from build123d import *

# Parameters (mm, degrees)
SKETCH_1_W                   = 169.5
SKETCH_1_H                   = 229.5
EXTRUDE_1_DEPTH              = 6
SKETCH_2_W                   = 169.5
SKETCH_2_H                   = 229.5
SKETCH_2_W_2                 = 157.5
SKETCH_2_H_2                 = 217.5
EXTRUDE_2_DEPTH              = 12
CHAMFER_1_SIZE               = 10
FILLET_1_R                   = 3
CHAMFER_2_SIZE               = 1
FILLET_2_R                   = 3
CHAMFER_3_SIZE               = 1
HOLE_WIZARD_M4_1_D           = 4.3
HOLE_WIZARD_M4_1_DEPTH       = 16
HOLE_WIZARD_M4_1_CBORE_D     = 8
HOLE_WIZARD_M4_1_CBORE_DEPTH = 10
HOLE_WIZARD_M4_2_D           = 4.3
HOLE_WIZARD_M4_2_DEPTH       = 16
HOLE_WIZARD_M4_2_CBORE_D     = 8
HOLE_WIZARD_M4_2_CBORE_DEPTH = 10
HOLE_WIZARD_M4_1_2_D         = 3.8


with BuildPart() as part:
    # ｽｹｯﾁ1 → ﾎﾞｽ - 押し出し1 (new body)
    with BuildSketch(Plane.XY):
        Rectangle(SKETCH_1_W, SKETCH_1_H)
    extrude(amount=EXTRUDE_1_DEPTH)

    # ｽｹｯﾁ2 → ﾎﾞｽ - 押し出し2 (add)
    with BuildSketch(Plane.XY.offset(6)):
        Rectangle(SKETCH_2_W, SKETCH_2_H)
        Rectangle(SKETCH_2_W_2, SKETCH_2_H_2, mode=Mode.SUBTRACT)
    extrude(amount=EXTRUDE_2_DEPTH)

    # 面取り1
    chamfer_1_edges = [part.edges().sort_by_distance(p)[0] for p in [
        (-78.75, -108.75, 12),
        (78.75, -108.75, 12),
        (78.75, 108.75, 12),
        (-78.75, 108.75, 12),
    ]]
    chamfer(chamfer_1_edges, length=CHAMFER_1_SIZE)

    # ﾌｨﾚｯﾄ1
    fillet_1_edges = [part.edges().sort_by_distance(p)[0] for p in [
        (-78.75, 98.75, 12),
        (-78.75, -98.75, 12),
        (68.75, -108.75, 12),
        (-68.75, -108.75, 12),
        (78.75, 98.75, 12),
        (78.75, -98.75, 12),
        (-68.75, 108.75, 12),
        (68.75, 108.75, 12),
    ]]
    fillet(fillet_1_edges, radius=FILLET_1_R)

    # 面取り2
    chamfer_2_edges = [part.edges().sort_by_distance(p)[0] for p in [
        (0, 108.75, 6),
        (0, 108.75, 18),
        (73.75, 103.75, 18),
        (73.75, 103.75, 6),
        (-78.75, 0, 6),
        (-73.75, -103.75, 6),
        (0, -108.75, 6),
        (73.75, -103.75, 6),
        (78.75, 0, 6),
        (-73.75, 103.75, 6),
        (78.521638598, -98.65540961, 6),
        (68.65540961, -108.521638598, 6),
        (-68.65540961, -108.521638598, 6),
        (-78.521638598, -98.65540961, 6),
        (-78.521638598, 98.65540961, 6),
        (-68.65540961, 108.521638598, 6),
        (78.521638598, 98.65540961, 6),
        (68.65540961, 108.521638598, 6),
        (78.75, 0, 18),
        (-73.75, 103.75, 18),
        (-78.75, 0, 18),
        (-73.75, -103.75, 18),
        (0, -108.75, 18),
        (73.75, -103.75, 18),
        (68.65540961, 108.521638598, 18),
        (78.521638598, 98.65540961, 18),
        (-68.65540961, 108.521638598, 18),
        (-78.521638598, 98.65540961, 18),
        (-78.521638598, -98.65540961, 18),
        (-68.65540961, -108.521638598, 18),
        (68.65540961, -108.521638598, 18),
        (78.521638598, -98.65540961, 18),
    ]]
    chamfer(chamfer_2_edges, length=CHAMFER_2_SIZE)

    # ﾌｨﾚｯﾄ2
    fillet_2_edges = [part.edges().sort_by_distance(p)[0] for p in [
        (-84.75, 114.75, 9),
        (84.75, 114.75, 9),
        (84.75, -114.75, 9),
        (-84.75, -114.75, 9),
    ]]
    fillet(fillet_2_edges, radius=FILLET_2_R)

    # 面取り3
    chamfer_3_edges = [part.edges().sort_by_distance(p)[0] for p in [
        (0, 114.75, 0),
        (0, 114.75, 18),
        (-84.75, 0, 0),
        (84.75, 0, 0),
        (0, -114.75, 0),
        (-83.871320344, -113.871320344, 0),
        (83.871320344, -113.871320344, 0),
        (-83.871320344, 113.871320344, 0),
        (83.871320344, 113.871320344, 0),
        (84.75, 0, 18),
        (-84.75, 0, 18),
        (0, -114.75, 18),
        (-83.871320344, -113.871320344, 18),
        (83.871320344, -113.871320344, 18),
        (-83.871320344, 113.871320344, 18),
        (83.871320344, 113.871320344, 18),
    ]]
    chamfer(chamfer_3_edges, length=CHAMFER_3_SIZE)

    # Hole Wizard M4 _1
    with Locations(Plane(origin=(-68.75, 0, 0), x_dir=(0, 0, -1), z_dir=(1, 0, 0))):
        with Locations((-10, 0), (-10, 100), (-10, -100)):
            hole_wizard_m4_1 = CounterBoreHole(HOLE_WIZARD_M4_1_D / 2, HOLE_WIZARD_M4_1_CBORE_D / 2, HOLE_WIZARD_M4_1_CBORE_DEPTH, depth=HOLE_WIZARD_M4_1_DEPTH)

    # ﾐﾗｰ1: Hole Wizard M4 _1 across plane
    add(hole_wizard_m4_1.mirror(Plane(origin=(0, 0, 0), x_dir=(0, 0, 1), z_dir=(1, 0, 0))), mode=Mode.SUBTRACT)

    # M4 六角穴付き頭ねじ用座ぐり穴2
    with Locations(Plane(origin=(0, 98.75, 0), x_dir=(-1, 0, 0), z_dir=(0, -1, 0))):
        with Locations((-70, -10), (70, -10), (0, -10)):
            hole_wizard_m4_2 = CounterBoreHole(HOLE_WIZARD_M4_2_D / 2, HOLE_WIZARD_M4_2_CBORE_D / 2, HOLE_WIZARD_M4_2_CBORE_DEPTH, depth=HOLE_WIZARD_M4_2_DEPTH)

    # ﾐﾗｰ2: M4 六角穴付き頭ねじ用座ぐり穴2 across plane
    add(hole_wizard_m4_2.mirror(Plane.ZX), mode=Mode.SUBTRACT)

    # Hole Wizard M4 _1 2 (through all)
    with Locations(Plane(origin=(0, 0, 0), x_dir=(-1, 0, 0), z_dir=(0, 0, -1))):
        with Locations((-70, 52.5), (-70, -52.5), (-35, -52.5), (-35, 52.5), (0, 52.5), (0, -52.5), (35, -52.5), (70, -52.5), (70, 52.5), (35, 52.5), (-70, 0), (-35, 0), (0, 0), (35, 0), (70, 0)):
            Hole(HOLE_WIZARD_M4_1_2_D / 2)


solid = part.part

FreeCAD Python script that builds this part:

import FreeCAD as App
import Part
import Sketcher

V = App.Vector


def edges_at(feature, points):
    """Names of the edges that pass closest to the given points."""
    edges = feature.Shape.Edges
    near = lambda p: min(range(len(edges)), key=lambda i: edges[i].distToShape(Part.Vertex(*p))[0])
    return sorted({f"Edge{near(p) + 1}" for p in points})


def add_polygon(sketch, points):
    """Adds a closed chain of lines whose ends are joined by coincident constraints."""
    first, n = sketch.GeometryCount, len(points)
    for a, b in zip(points, points[1:] + points[:1]):
        sketch.addGeometry(Part.LineSegment(App.Vector(*a, 0), App.Vector(*b, 0)), False)
    for i in range(n):
        sketch.addConstraint(Sketcher.Constraint("Coincident", first + i, 2, first + (i + 1) % n, 1))

doc = App.newDocument("Part")
body = doc.addObject("PartDesign::Body", "Body")

# Sketch on XY plane
sketch1 = body.newObject("Sketcher::SketchObject", "Sketch")
sketch1.AttachmentSupport = (doc.getObject("XY_Plane"), [""])
sketch1.MapMode = "FlatFace"
add_polygon(sketch1, [(-84.75, 114.75), (-84.75, -114.75), (84.75, -114.75), (84.75, 114.75)])  # lines 0-3
sketch1.addConstraint(Sketcher.Constraint("Vertical", 0))
sketch1.addConstraint(Sketcher.Constraint("Horizontal", 1))
sketch1.addConstraint(Sketcher.Constraint("Vertical", 2))
sketch1.addConstraint(Sketcher.Constraint("Horizontal", 3))
sketch1.addConstraint(Sketcher.Constraint("Symmetric", 0, 2, 2, 2, -1, 1))
sketch1.addConstraint(Sketcher.Constraint("DistanceX", 1, 1, 1, 2, 169.5))
sketch1.addConstraint(Sketcher.Constraint("DistanceY", 0, 2, 0, 1, 229.5))
pad1 = body.newObject("PartDesign::Pad", "Pad")
pad1.Profile = sketch1
pad1.Length = 6

# Sketch on XY plane
sketch2 = body.newObject("Sketcher::SketchObject", "Sketch001")
sketch2.AttachmentSupport = (doc.getObject("XY_Plane"), [""])
sketch2.MapMode = "FlatFace"
sketch2.AttachmentOffset = App.Placement(V(0, 0, 6), App.Rotation())
add_polygon(sketch2, [(-84.75, 114.75), (-84.75, -114.75), (84.75, -114.75), (84.75, 114.75)])  # lines 0-3
add_polygon(sketch2, [(78.75, -108.75), (-78.75, -108.75), (-78.75, 108.75), (78.75, 108.75)])  # lines 4-7
sketch2.addConstraint(Sketcher.Constraint("Vertical", 0))
sketch2.addConstraint(Sketcher.Constraint("Horizontal", 1))
sketch2.addConstraint(Sketcher.Constraint("Vertical", 2))
sketch2.addConstraint(Sketcher.Constraint("Horizontal", 3))
sketch2.addConstraint(Sketcher.Constraint("Horizontal", 4))
sketch2.addConstraint(Sketcher.Constraint("Vertical", 5))
sketch2.addConstraint(Sketcher.Constraint("Horizontal", 6))
sketch2.addConstraint(Sketcher.Constraint("Vertical", 7))
sketch2.addConstraint(Sketcher.Constraint("Symmetric", 0, 2, 2, 2, -1, 1))
sketch2.addConstraint(Sketcher.Constraint("Symmetric", 4, 2, 6, 2, -1, 1))
sketch2.addConstraint(Sketcher.Constraint("DistanceX", 1, 1, 1, 2, 169.5))
sketch2.addConstraint(Sketcher.Constraint("DistanceX", 4, 2, 4, 1, 157.5))
sketch2.addConstraint(Sketcher.Constraint("DistanceY", 0, 2, 0, 1, 229.5))
sketch2.addConstraint(Sketcher.Constraint("DistanceY", 5, 1, 5, 2, 217.5))
pad2 = body.newObject("PartDesign::Pad", "Pad001")
pad2.Profile = sketch2
pad2.Length = 12
doc.recompute()

chamfer = body.newObject("PartDesign::Chamfer", "Chamfer")
chamfer.Base = (pad2, edges_at(pad2, [
    (-78.75, -108.75, 12),
    (78.75, -108.75, 12),
    (78.75, 108.75, 12),
    (-78.75, 108.75, 12),
]))
chamfer.Size = 10
doc.recompute()

fillet = body.newObject("PartDesign::Fillet", "Fillet")
fillet.Base = (chamfer, edges_at(chamfer, [
    (-78.75, 98.75, 12),
    (-78.75, -98.75, 12),
    (68.75, -108.75, 12),
    (-68.75, -108.75, 12),
    (78.75, 98.75, 12),
    (78.75, -98.75, 12),
    (-68.75, 108.75, 12),
    (68.75, 108.75, 12),
]))
fillet.Radius = 3
doc.recompute()

chamfer2 = body.newObject("PartDesign::Chamfer", "Chamfer001")
chamfer2.Base = (fillet, edges_at(fillet, [
    (0, 108.75, 6),
    (0, 108.75, 18),
    (73.75, 103.75, 18),
    (73.75, 103.75, 6),
    (-78.75, 0, 6),
    (-73.75, -103.75, 6),
    (0, -108.75, 6),
    (73.75, -103.75, 6),
    (78.75, 0, 6),
    (-73.75, 103.75, 6),
    (78.522, -98.655, 6),
    (68.655, -108.522, 6),
    (-68.655, -108.522, 6),
    (-78.522, -98.655, 6),
    (-78.522, 98.655, 6),
    (-68.655, 108.522, 6),
    (78.522, 98.655, 6),
    (68.655, 108.522, 6),
    (78.75, 0, 18),
    (-73.75, 103.75, 18),
    (-78.75, 0, 18),
    (-73.75, -103.75, 18),
    (0, -108.75, 18),
    (73.75, -103.75, 18),
    (68.655, 108.522, 18),
    (78.522, 98.655, 18),
    (-68.655, 108.522, 18),
    (-78.522, 98.655, 18),
    (-78.522, -98.655, 18),
    (-68.655, -108.522, 18),
    (68.655, -108.522, 18),
    (78.522, -98.655, 18),
]))
chamfer2.Size = 1
doc.recompute()

fillet2 = body.newObject("PartDesign::Fillet", "Fillet001")
fillet2.Base = (chamfer2, edges_at(chamfer2, [
    (-84.75, 114.75, 9),
    (84.75, 114.75, 9),
    (84.75, -114.75, 9),
    (-84.75, -114.75, 9),
]))
fillet2.Radius = 3
doc.recompute()

chamfer3 = body.newObject("PartDesign::Chamfer", "Chamfer002")
chamfer3.Base = (fillet2, edges_at(fillet2, [
    (0, 114.75, 0),
    (0, 114.75, 18),
    (-84.75, 0, 0),
    (84.75, 0, 0),
    (0, -114.75, 0),
    (-83.871, -113.871, 0),
    (83.871, -113.871, 0),
    (-83.871, 113.871, 0),
    (83.871, 113.871, 0),
    (84.75, 0, 18),
    (-84.75, 0, 18),
    (0, -114.75, 18),
    (-83.871, -113.871, 18),
    (83.871, -113.871, 18),
    (-83.871, 113.871, 18),
    (83.871, 113.871, 18),
]))
chamfer3.Size = 1

# Sketch on YZ plane
sketch3 = body.newObject("Sketcher::SketchObject", "Sketch002")
sketch3.AttachmentSupport = (doc.getObject("YZ_Plane"), [""])
sketch3.MapMode = "FlatFace"
sketch3.AttachmentOffset = App.Placement(V(0, 0, -68.75), App.Rotation())
sketch3.addGeometry(Part.Circle(V(0, 10, 0), V(0, 0, 1), 2.15), False)
sketch3.addGeometry(Part.Circle(V(100, 10, 0), V(0, 0, 1), 2.15), False)
sketch3.addGeometry(Part.Circle(V(-100, 10, 0), V(0, 0, 1), 2.15), False)
sketch3.addConstraint(Sketcher.Constraint("Equal", 0, 1))
sketch3.addConstraint(Sketcher.Constraint("Equal", 1, 2))
sketch3.addConstraint(Sketcher.Constraint("Symmetric", 1, 3, 2, 3, -2))
sketch3.addConstraint(Sketcher.Constraint("PointOnObject", 0, 3, -2))
sketch3.addConstraint(Sketcher.Constraint("Horizontal", 0, 3, 1, 3))
sketch3.addConstraint(Sketcher.Constraint("Diameter", 0, 4.3))
sketch3.addConstraint(Sketcher.Constraint("DistanceY", -1, 1, 0, 3, 10.0))
sketch3.addConstraint(Sketcher.Constraint("DistanceX", -1, 1, 1, 3, 100.0))
doc.recompute()
hole = body.newObject("PartDesign::Hole", "Hole")
hole.Profile = sketch3
hole.ThreadType = "None"
hole.Diameter = 4.3
hole.DepthType = "Dimension"
hole.Depth = 16
hole.DrillPoint = "Flat"
hole.HoleCutType = "Counterbore"
hole.HoleCutDiameter = 8
hole.HoleCutDepth = 10
doc.recompute()

mirrored = body.newObject("PartDesign::Mirrored", "Mirrored")
mirrored.Originals = [hole]
mirrored.MirrorPlane = (doc.getObject("YZ_Plane"), [""])
body.Tip = mirrored

# Sketch on XZ plane
sketch4 = body.newObject("Sketcher::SketchObject", "Sketch003")
sketch4.AttachmentSupport = (doc.getObject("XZ_Plane"), [""])
sketch4.MapMode = "FlatFace"
sketch4.AttachmentOffset = App.Placement(V(0, 0, -98.75), App.Rotation())
sketch4.addGeometry(Part.Circle(V(70, 10, 0), V(0, 0, 1), 2.15), False)
sketch4.addGeometry(Part.Circle(V(-70, 10, 0), V(0, 0, 1), 2.15), False)
sketch4.addGeometry(Part.Circle(V(0, 10, 0), V(0, 0, 1), 2.15), False)
sketch4.addConstraint(Sketcher.Constraint("Equal", 0, 1))
sketch4.addConstraint(Sketcher.Constraint("Equal", 1, 2))
sketch4.addConstraint(Sketcher.Constraint("Symmetric", 0, 3, 1, 3, -2))
sketch4.addConstraint(Sketcher.Constraint("PointOnObject", 2, 3, -2))
sketch4.addConstraint(Sketcher.Constraint("Horizontal", 1, 3, 2, 3))
sketch4.addConstraint(Sketcher.Constraint("Diameter", 0, 4.3))
sketch4.addConstraint(Sketcher.Constraint("DistanceX", -1, 1, 0, 3, 70.0))
sketch4.addConstraint(Sketcher.Constraint("DistanceY", -1, 1, 0, 3, 10.0))
doc.recompute()
hole2 = body.newObject("PartDesign::Hole", "Hole001")
hole2.Profile = sketch4
hole2.ThreadType = "None"
hole2.Diameter = 4.3
hole2.DepthType = "Dimension"
hole2.Depth = 16
hole2.DrillPoint = "Flat"
hole2.HoleCutType = "Counterbore"
hole2.HoleCutDiameter = 8
hole2.HoleCutDepth = 10
doc.recompute()

mirrored2 = body.newObject("PartDesign::Mirrored", "Mirrored001")
mirrored2.Originals = [hole2]
mirrored2.MirrorPlane = (doc.getObject("XZ_Plane"), [""])
body.Tip = mirrored2

# Sketch on XY plane
sketch5 = body.newObject("Sketcher::SketchObject", "Sketch004")
sketch5.AttachmentSupport = (doc.getObject("XY_Plane"), [""])
sketch5.MapMode = "FlatFace"
sketch5.addGeometry(Part.Circle(V(70, 52.5, 0), V(0, 0, 1), 1.9), False)
sketch5.addGeometry(Part.Circle(V(70, -52.5, 0), V(0, 0, 1), 1.9), False)
sketch5.addGeometry(Part.Circle(V(35, -52.5, 0), V(0, 0, 1), 1.9), False)
sketch5.addGeometry(Part.Circle(V(35, 52.5, 0), V(0, 0, 1), 1.9), False)
sketch5.addGeometry(Part.Circle(V(0, 52.5, 0), V(0, 0, 1), 1.9), False)
sketch5.addGeometry(Part.Circle(V(0, -52.5, 0), V(0, 0, 1), 1.9), False)
sketch5.addGeometry(Part.Circle(V(-35, -52.5, 0), V(0, 0, 1), 1.9), False)
sketch5.addGeometry(Part.Circle(V(-70, -52.5, 0), V(0, 0, 1), 1.9), False)
sketch5.addGeometry(Part.Circle(V(-70, 52.5, 0), V(0, 0, 1), 1.9), False)
sketch5.addGeometry(Part.Circle(V(-35, 52.5, 0), V(0, 0, 1), 1.9), False)
sketch5.addGeometry(Part.Circle(V(70, 0, 0), V(0, 0, 1), 1.9), False)
sketch5.addGeometry(Part.Circle(V(35, 0, 0), V(0, 0, 1), 1.9), False)
sketch5.addGeometry(Part.Circle(V(0, 0, 0), V(0, 0, 1), 1.9), False)
sketch5.addGeometry(Part.Circle(V(-35, 0, 0), V(0, 0, 1), 1.9), False)
sketch5.addGeometry(Part.Circle(V(-70, 0, 0), V(0, 0, 1), 1.9), False)
sketch5.addConstraint(Sketcher.Constraint("Coincident", 12, 3, -1, 1))
sketch5.addConstraint(Sketcher.Constraint("Equal", 0, 1))
sketch5.addConstraint(Sketcher.Constraint("Equal", 1, 2))
sketch5.addConstraint(Sketcher.Constraint("Equal", 2, 3))
sketch5.addConstraint(Sketcher.Constraint("Equal", 3, 4))
sketch5.addConstraint(Sketcher.Constraint("Equal", 4, 5))
sketch5.addConstraint(Sketcher.Constraint("Equal", 5, 6))
sketch5.addConstraint(Sketcher.Constraint("Equal", 6, 7))
sketch5.addConstraint(Sketcher.Constraint("Equal", 7, 8))
sketch5.addConstraint(Sketcher.Constraint("Equal", 8, 9))
sketch5.addConstraint(Sketcher.Constraint("Equal", 9, 10))
sketch5.addConstraint(Sketcher.Constraint("Equal", 10, 11))
sketch5.addConstraint(Sketcher.Constraint("Equal", 11, 12))
sketch5.addConstraint(Sketcher.Constraint("Equal", 12, 13))
sketch5.addConstraint(Sketcher.Constraint("Equal", 13, 14))
sketch5.addConstraint(Sketcher.Constraint("Symmetric", 4, 3, 5, 3, -1, 1))
sketch5.addConstraint(Sketcher.Constraint("Symmetric", 3, 3, 6, 3, -1, 1))
sketch5.addConstraint(Sketcher.Constraint("Symmetric", 0, 3, 7, 3, -1, 1))
sketch5.addConstraint(Sketcher.Constraint("Symmetric", 1, 3, 8, 3, -1, 1))
sketch5.addConstraint(Sketcher.Constraint("Symmetric", 2, 3, 9, 3, -1, 1))
sketch5.addConstraint(Sketcher.Constraint("Symmetric", 11, 3, 13, 3, -1, 1))
sketch5.addConstraint(Sketcher.Constraint("Symmetric", 10, 3, 14, 3, -1, 1))
sketch5.addConstraint(Sketcher.Constraint("Symmetric", 2, 3, 6, 3, -2))
sketch5.addConstraint(Sketcher.Constraint("Symmetric", 1, 3, 7, 3, -2))
sketch5.addConstraint(Sketcher.Constraint("PointOnObject", 4, 3, -2))
sketch5.addConstraint(Sketcher.Constraint("PointOnObject", 10, 3, -1))
sketch5.addConstraint(Sketcher.Constraint("PointOnObject", 11, 3, -1))
sketch5.addConstraint(Sketcher.Constraint("Horizontal", 1, 3, 2, 3))
sketch5.addConstraint(Sketcher.Constraint("Horizontal", 3, 3, 4, 3))
sketch5.addConstraint(Sketcher.Constraint("Vertical", 1, 3, 10, 3))
sketch5.addConstraint(Sketcher.Constraint("Vertical", 3, 3, 11, 3))
sketch5.addConstraint(Sketcher.Constraint("Diameter", 0, 3.8))
sketch5.addConstraint(Sketcher.Constraint("DistanceX", -1, 1, 0, 3, 70.0))
sketch5.addConstraint(Sketcher.Constraint("DistanceX", -1, 1, 2, 3, 35.0))
sketch5.addConstraint(Sketcher.Constraint("DistanceY", 1, 3, 0, 3, 105.0))
doc.recompute()
hole3 = body.newObject("PartDesign::Hole", "Hole002")
hole3.Profile = sketch5
hole3.ThreadType = "None"
hole3.Diameter = 3.8
hole3.DepthType = "ThroughAll"
hole3.Reversed = True

doc.recompute()
